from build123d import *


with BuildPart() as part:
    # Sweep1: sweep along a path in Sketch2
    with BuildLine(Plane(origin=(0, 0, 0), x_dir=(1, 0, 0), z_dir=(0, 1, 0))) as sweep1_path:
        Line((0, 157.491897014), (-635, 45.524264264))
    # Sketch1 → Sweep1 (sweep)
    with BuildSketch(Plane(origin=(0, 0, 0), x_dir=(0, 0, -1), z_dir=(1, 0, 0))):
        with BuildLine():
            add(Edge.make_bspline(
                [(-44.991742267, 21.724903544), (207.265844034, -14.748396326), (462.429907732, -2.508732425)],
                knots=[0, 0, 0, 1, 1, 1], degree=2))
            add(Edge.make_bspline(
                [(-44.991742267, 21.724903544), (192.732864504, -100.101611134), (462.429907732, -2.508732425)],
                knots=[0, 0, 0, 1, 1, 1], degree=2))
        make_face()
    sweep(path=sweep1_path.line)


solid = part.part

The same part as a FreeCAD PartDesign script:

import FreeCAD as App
import Part
import Sketcher
from FreeCAD import Vector
Q = App.Units.Quantity

doc = App.newDocument("Part")
body = doc.addObject("PartDesign::Body", "Body")

sketch1 = body.newObject("Sketcher::SketchObject", "Sketch")
sketch1.AttachmentSupport = (doc.getObject("YZ_Plane"), [""])
sketch1.MapMode = "FlatFace"
sketch1.addGeometry(Part.BSplineCurve([Vector(21.724904, 44.991742, 0), Vector(-14.748396, -207.265844, 0), Vector(-2.508732, -462.429908, 0)], [3, 3], [0, 1], False, 2, [1, 1, 1], False), False)
sketch1.addGeometry(Part.BSplineCurve([Vector(21.724904, 44.991742, 0), Vector(-100.101611, -192.732865, 0), Vector(-2.508732, -462.429908, 0)], [3, 3], [0, 1], False, 2, [1, 1, 1], False), False)
sketch1.addConstraint(Sketcher.Constraint("Block", 0))
sketch1.addConstraint(Sketcher.Constraint("Block", 1))

sketch2 = body.newObject("Sketcher::SketchObject", "Sketch001")
sketch2.Placement = App.Placement(Vector(-26.932701, 0, -152.742935), App.Rotation(Vector(-0.984807753, 0, 0.173648178), Vector(0, 1, 0), Vector(-0.173648178, 0, -0.984807753), "ZXY"))
sketch2.addGeometry(Part.LineSegment(Vector(-27, 0, 0), Vector(617, 0, 0)), False)
sketch2.addConstraint(Sketcher.Constraint("Horizontal", 0))
sketch2.addConstraint(Sketcher.Constraint("PointOnObject", 0, 1, -1))
sketch2.addConstraint(Sketcher.Constraint("DistanceX", 0, 1, 0, 2, Q("644.795899 mm")))
sketch2.addConstraint(Sketcher.Constraint("DistanceX", 0, 1, -1, 1, Q("27.348181 mm")))
doc.recompute()

additivepipe = body.newObject("PartDesign::AdditivePipe", "AdditivePipe")
additivepipe.Profile = sketch1
additivepipe.Spine = (sketch2, ["Edge1"])

doc.recompute()
